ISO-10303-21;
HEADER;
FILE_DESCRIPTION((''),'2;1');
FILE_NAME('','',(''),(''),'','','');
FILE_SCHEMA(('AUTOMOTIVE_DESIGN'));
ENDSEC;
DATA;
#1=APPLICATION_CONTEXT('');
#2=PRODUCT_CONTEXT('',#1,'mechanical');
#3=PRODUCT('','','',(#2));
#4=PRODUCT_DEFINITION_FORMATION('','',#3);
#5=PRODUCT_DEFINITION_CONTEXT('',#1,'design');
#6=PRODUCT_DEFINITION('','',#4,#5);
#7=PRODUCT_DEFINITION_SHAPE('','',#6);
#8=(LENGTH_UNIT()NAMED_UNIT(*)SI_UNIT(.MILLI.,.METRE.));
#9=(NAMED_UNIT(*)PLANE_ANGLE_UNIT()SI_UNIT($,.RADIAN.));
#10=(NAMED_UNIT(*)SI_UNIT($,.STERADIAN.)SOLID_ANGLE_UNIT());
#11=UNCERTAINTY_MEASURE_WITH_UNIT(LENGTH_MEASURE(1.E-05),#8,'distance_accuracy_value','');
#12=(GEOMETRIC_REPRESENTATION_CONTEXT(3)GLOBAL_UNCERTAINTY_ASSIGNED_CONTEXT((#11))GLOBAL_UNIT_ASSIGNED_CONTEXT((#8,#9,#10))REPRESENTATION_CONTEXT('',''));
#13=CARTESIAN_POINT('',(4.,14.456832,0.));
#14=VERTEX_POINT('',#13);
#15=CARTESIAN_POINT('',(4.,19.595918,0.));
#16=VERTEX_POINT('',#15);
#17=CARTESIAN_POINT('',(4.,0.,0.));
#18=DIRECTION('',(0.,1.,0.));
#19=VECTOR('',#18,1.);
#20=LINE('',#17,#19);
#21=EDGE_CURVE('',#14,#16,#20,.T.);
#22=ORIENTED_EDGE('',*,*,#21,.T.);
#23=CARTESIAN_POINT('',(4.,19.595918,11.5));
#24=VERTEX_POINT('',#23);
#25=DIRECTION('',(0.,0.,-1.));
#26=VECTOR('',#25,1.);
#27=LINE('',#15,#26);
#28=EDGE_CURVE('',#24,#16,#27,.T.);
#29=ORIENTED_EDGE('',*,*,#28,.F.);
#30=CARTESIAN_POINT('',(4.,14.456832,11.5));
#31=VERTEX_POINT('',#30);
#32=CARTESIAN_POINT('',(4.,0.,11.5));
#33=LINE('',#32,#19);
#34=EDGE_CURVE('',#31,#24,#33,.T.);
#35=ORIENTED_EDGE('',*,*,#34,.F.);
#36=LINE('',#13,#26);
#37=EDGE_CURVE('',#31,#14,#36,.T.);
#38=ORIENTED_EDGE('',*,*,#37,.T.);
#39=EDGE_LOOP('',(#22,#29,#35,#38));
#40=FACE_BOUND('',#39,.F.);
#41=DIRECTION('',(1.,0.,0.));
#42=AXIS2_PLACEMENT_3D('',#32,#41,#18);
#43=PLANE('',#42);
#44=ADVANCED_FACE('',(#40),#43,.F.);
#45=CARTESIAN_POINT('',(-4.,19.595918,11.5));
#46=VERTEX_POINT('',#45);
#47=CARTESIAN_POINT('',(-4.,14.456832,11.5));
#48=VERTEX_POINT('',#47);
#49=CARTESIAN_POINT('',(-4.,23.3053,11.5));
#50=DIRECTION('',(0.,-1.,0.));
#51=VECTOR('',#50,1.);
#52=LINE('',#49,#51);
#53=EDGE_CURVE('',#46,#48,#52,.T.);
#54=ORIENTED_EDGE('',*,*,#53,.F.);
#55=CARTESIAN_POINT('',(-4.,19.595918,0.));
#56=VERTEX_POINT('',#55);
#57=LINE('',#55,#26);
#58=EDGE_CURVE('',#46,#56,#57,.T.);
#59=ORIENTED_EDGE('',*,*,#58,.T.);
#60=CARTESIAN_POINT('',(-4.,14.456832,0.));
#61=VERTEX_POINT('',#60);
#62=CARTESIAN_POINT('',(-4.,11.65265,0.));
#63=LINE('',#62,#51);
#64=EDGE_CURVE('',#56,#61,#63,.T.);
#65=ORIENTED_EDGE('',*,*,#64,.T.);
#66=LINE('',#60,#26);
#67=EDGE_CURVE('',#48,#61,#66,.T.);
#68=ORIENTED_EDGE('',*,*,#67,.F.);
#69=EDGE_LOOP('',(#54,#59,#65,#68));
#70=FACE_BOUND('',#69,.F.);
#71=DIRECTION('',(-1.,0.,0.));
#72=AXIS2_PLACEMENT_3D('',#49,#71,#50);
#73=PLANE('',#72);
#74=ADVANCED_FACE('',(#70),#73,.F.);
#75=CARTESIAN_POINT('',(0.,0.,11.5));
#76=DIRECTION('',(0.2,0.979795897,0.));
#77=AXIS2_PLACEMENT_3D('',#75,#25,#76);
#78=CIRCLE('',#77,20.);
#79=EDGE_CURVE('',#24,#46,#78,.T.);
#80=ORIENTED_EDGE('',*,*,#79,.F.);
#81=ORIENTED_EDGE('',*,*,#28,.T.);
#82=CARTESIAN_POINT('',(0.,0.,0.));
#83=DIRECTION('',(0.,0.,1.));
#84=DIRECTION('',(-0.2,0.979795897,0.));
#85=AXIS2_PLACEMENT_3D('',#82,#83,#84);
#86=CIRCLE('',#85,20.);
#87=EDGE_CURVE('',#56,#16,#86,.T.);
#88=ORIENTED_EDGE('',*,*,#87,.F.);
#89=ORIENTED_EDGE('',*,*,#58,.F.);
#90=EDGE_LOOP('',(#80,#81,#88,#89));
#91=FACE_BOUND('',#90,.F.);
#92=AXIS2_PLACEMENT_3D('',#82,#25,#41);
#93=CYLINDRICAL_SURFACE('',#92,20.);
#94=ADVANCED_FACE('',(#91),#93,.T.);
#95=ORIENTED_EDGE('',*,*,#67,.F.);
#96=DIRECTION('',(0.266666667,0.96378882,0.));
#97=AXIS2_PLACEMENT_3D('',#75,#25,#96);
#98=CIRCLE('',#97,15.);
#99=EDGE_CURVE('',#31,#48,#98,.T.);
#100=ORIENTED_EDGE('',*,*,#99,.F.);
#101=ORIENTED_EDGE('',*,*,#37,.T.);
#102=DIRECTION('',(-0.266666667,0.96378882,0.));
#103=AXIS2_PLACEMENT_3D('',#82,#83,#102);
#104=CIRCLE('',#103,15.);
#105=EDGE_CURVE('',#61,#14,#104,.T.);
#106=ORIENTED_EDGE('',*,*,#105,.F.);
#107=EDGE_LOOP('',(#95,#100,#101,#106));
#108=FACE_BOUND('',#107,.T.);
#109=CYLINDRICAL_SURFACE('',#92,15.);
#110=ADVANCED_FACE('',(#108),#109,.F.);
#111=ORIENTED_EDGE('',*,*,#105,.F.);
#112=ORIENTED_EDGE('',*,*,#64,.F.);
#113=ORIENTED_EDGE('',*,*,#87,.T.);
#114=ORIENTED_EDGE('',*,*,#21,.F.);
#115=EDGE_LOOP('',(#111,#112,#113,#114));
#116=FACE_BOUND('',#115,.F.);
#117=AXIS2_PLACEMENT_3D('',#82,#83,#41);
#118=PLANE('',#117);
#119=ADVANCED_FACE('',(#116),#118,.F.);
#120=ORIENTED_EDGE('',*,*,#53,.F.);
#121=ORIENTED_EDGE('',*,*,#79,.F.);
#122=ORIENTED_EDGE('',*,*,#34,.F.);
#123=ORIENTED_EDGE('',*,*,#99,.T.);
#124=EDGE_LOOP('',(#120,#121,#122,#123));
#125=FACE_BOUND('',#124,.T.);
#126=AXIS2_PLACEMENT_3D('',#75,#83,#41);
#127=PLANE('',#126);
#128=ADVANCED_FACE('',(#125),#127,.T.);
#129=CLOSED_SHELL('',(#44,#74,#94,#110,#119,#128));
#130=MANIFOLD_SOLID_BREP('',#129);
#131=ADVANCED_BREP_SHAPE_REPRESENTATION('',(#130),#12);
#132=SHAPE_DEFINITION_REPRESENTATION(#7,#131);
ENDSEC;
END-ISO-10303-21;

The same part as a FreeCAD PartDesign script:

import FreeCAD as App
import Part
import Sketcher
Q = App.Units.Quantity


def add_polygon(sketch, points):
    """Adds a closed chain of lines whose ends are joined by coincident constraints."""
    first, n = sketch.GeometryCount, len(points)
    for a, b in zip(points, points[1:] + points[:1]):
        sketch.addGeometry(Part.LineSegment(App.Vector(*a, 0), App.Vector(*b, 0)), False)
    for i in range(n):
        sketch.addConstraint(Sketcher.Constraint("Coincident", first + i, 2, first + (i + 1) % n, 1))

doc = App.newDocument("Part")
params = doc.addObject("Spreadsheet::Sheet", "Params")
for row, (alias, value) in enumerate([
    ("sketch1_diameter", "40 mm"),
    ("sketch1_diameter2", "30 mm"),
    ("pad1_length", "11.5 mm"),
    ("sketch2_width", "8 mm"),
], start=1):
    params.set(f"A{row}", alias)
    params.set(f"B{row}", "=" + value)
    params.setAlias(f"B{row}", alias)

body = doc.addObject("PartDesign::Body", "Body")

# Sketch on XY plane
sketch1 = doc.addObject("Sketcher::SketchObject", "Sketch")
body.addObject(sketch1)
sketch1.AttachmentSupport = (doc.XY_Plane, [""])
sketch1.MapMode = "FlatFace"
sketch1.addGeometry(Part.Circle(App.Vector(0, 0, 0), App.Vector(0, 0, 1), 20), False)
sketch1.addGeometry(Part.Circle(App.Vector(0, 0, 0), App.Vector(0, 0, 1), 15), False)
sketch1.addConstraint(Sketcher.Constraint("Coincident", 0, 3, -1, 1))
sketch1.addConstraint(Sketcher.Constraint("Coincident", 1, 3, -1, 1))
sketch1.addConstraint(Sketcher.Constraint("Diameter", 0, Q("40 mm")))
sketch1.addConstraint(Sketcher.Constraint("Diameter", 1, Q("30 mm")))
sketch1.setExpression("Constraints[2]", "Params.sketch1_diameter")
sketch1.setExpression("Constraints[3]", "Params.sketch1_diameter2")
pad1 = doc.addObject("PartDesign::Pad", "Pad")
body.addObject(pad1)
pad1.Profile = sketch1
pad1.setExpression("Length", "Params.pad1_length")

# Sketch on XY plane
sketch2 = doc.addObject("Sketcher::SketchObject", "Sketch001")
body.addObject(sketch2)
sketch2.AttachmentSupport = (doc.XY_Plane, [""])
sketch2.MapMode = "FlatFace"
sketch2.AttachmentOffset = App.Placement(App.Vector(0, 0, 11.5), App.Rotation())
add_polygon(sketch2, [(-4, 23), (-4, 0), (4, 0), (4, 23)])  # lines 0-3
sketch2.addConstraint(Sketcher.Constraint("Vertical", 0))
sketch2.addConstraint(Sketcher.Constraint("Horizontal", 1))
sketch2.addConstraint(Sketcher.Constraint("Vertical", 2))
sketch2.addConstraint(Sketcher.Constraint("Horizontal", 3))
sketch2.addConstraint(Sketcher.Constraint("Symmetric", 0, 2, 1, 2, -1, 1))
sketch2.addConstraint(Sketcher.Constraint("DistanceX", 1, 1, 1, 2, Q("8 mm")))
sketch2.addConstraint(Sketcher.Constraint("DistanceY", 0, 2, 0, 1, Q("23.3053 mm")))
sketch2.setExpression("Constraints[9]", "Params.sketch2_width")
pocket1 = doc.addObject("PartDesign::Pocket", "Pocket")
body.addObject(pocket1)
pocket1.Profile = sketch2
pocket1.Type = "ThroughAll"

doc.recompute()
